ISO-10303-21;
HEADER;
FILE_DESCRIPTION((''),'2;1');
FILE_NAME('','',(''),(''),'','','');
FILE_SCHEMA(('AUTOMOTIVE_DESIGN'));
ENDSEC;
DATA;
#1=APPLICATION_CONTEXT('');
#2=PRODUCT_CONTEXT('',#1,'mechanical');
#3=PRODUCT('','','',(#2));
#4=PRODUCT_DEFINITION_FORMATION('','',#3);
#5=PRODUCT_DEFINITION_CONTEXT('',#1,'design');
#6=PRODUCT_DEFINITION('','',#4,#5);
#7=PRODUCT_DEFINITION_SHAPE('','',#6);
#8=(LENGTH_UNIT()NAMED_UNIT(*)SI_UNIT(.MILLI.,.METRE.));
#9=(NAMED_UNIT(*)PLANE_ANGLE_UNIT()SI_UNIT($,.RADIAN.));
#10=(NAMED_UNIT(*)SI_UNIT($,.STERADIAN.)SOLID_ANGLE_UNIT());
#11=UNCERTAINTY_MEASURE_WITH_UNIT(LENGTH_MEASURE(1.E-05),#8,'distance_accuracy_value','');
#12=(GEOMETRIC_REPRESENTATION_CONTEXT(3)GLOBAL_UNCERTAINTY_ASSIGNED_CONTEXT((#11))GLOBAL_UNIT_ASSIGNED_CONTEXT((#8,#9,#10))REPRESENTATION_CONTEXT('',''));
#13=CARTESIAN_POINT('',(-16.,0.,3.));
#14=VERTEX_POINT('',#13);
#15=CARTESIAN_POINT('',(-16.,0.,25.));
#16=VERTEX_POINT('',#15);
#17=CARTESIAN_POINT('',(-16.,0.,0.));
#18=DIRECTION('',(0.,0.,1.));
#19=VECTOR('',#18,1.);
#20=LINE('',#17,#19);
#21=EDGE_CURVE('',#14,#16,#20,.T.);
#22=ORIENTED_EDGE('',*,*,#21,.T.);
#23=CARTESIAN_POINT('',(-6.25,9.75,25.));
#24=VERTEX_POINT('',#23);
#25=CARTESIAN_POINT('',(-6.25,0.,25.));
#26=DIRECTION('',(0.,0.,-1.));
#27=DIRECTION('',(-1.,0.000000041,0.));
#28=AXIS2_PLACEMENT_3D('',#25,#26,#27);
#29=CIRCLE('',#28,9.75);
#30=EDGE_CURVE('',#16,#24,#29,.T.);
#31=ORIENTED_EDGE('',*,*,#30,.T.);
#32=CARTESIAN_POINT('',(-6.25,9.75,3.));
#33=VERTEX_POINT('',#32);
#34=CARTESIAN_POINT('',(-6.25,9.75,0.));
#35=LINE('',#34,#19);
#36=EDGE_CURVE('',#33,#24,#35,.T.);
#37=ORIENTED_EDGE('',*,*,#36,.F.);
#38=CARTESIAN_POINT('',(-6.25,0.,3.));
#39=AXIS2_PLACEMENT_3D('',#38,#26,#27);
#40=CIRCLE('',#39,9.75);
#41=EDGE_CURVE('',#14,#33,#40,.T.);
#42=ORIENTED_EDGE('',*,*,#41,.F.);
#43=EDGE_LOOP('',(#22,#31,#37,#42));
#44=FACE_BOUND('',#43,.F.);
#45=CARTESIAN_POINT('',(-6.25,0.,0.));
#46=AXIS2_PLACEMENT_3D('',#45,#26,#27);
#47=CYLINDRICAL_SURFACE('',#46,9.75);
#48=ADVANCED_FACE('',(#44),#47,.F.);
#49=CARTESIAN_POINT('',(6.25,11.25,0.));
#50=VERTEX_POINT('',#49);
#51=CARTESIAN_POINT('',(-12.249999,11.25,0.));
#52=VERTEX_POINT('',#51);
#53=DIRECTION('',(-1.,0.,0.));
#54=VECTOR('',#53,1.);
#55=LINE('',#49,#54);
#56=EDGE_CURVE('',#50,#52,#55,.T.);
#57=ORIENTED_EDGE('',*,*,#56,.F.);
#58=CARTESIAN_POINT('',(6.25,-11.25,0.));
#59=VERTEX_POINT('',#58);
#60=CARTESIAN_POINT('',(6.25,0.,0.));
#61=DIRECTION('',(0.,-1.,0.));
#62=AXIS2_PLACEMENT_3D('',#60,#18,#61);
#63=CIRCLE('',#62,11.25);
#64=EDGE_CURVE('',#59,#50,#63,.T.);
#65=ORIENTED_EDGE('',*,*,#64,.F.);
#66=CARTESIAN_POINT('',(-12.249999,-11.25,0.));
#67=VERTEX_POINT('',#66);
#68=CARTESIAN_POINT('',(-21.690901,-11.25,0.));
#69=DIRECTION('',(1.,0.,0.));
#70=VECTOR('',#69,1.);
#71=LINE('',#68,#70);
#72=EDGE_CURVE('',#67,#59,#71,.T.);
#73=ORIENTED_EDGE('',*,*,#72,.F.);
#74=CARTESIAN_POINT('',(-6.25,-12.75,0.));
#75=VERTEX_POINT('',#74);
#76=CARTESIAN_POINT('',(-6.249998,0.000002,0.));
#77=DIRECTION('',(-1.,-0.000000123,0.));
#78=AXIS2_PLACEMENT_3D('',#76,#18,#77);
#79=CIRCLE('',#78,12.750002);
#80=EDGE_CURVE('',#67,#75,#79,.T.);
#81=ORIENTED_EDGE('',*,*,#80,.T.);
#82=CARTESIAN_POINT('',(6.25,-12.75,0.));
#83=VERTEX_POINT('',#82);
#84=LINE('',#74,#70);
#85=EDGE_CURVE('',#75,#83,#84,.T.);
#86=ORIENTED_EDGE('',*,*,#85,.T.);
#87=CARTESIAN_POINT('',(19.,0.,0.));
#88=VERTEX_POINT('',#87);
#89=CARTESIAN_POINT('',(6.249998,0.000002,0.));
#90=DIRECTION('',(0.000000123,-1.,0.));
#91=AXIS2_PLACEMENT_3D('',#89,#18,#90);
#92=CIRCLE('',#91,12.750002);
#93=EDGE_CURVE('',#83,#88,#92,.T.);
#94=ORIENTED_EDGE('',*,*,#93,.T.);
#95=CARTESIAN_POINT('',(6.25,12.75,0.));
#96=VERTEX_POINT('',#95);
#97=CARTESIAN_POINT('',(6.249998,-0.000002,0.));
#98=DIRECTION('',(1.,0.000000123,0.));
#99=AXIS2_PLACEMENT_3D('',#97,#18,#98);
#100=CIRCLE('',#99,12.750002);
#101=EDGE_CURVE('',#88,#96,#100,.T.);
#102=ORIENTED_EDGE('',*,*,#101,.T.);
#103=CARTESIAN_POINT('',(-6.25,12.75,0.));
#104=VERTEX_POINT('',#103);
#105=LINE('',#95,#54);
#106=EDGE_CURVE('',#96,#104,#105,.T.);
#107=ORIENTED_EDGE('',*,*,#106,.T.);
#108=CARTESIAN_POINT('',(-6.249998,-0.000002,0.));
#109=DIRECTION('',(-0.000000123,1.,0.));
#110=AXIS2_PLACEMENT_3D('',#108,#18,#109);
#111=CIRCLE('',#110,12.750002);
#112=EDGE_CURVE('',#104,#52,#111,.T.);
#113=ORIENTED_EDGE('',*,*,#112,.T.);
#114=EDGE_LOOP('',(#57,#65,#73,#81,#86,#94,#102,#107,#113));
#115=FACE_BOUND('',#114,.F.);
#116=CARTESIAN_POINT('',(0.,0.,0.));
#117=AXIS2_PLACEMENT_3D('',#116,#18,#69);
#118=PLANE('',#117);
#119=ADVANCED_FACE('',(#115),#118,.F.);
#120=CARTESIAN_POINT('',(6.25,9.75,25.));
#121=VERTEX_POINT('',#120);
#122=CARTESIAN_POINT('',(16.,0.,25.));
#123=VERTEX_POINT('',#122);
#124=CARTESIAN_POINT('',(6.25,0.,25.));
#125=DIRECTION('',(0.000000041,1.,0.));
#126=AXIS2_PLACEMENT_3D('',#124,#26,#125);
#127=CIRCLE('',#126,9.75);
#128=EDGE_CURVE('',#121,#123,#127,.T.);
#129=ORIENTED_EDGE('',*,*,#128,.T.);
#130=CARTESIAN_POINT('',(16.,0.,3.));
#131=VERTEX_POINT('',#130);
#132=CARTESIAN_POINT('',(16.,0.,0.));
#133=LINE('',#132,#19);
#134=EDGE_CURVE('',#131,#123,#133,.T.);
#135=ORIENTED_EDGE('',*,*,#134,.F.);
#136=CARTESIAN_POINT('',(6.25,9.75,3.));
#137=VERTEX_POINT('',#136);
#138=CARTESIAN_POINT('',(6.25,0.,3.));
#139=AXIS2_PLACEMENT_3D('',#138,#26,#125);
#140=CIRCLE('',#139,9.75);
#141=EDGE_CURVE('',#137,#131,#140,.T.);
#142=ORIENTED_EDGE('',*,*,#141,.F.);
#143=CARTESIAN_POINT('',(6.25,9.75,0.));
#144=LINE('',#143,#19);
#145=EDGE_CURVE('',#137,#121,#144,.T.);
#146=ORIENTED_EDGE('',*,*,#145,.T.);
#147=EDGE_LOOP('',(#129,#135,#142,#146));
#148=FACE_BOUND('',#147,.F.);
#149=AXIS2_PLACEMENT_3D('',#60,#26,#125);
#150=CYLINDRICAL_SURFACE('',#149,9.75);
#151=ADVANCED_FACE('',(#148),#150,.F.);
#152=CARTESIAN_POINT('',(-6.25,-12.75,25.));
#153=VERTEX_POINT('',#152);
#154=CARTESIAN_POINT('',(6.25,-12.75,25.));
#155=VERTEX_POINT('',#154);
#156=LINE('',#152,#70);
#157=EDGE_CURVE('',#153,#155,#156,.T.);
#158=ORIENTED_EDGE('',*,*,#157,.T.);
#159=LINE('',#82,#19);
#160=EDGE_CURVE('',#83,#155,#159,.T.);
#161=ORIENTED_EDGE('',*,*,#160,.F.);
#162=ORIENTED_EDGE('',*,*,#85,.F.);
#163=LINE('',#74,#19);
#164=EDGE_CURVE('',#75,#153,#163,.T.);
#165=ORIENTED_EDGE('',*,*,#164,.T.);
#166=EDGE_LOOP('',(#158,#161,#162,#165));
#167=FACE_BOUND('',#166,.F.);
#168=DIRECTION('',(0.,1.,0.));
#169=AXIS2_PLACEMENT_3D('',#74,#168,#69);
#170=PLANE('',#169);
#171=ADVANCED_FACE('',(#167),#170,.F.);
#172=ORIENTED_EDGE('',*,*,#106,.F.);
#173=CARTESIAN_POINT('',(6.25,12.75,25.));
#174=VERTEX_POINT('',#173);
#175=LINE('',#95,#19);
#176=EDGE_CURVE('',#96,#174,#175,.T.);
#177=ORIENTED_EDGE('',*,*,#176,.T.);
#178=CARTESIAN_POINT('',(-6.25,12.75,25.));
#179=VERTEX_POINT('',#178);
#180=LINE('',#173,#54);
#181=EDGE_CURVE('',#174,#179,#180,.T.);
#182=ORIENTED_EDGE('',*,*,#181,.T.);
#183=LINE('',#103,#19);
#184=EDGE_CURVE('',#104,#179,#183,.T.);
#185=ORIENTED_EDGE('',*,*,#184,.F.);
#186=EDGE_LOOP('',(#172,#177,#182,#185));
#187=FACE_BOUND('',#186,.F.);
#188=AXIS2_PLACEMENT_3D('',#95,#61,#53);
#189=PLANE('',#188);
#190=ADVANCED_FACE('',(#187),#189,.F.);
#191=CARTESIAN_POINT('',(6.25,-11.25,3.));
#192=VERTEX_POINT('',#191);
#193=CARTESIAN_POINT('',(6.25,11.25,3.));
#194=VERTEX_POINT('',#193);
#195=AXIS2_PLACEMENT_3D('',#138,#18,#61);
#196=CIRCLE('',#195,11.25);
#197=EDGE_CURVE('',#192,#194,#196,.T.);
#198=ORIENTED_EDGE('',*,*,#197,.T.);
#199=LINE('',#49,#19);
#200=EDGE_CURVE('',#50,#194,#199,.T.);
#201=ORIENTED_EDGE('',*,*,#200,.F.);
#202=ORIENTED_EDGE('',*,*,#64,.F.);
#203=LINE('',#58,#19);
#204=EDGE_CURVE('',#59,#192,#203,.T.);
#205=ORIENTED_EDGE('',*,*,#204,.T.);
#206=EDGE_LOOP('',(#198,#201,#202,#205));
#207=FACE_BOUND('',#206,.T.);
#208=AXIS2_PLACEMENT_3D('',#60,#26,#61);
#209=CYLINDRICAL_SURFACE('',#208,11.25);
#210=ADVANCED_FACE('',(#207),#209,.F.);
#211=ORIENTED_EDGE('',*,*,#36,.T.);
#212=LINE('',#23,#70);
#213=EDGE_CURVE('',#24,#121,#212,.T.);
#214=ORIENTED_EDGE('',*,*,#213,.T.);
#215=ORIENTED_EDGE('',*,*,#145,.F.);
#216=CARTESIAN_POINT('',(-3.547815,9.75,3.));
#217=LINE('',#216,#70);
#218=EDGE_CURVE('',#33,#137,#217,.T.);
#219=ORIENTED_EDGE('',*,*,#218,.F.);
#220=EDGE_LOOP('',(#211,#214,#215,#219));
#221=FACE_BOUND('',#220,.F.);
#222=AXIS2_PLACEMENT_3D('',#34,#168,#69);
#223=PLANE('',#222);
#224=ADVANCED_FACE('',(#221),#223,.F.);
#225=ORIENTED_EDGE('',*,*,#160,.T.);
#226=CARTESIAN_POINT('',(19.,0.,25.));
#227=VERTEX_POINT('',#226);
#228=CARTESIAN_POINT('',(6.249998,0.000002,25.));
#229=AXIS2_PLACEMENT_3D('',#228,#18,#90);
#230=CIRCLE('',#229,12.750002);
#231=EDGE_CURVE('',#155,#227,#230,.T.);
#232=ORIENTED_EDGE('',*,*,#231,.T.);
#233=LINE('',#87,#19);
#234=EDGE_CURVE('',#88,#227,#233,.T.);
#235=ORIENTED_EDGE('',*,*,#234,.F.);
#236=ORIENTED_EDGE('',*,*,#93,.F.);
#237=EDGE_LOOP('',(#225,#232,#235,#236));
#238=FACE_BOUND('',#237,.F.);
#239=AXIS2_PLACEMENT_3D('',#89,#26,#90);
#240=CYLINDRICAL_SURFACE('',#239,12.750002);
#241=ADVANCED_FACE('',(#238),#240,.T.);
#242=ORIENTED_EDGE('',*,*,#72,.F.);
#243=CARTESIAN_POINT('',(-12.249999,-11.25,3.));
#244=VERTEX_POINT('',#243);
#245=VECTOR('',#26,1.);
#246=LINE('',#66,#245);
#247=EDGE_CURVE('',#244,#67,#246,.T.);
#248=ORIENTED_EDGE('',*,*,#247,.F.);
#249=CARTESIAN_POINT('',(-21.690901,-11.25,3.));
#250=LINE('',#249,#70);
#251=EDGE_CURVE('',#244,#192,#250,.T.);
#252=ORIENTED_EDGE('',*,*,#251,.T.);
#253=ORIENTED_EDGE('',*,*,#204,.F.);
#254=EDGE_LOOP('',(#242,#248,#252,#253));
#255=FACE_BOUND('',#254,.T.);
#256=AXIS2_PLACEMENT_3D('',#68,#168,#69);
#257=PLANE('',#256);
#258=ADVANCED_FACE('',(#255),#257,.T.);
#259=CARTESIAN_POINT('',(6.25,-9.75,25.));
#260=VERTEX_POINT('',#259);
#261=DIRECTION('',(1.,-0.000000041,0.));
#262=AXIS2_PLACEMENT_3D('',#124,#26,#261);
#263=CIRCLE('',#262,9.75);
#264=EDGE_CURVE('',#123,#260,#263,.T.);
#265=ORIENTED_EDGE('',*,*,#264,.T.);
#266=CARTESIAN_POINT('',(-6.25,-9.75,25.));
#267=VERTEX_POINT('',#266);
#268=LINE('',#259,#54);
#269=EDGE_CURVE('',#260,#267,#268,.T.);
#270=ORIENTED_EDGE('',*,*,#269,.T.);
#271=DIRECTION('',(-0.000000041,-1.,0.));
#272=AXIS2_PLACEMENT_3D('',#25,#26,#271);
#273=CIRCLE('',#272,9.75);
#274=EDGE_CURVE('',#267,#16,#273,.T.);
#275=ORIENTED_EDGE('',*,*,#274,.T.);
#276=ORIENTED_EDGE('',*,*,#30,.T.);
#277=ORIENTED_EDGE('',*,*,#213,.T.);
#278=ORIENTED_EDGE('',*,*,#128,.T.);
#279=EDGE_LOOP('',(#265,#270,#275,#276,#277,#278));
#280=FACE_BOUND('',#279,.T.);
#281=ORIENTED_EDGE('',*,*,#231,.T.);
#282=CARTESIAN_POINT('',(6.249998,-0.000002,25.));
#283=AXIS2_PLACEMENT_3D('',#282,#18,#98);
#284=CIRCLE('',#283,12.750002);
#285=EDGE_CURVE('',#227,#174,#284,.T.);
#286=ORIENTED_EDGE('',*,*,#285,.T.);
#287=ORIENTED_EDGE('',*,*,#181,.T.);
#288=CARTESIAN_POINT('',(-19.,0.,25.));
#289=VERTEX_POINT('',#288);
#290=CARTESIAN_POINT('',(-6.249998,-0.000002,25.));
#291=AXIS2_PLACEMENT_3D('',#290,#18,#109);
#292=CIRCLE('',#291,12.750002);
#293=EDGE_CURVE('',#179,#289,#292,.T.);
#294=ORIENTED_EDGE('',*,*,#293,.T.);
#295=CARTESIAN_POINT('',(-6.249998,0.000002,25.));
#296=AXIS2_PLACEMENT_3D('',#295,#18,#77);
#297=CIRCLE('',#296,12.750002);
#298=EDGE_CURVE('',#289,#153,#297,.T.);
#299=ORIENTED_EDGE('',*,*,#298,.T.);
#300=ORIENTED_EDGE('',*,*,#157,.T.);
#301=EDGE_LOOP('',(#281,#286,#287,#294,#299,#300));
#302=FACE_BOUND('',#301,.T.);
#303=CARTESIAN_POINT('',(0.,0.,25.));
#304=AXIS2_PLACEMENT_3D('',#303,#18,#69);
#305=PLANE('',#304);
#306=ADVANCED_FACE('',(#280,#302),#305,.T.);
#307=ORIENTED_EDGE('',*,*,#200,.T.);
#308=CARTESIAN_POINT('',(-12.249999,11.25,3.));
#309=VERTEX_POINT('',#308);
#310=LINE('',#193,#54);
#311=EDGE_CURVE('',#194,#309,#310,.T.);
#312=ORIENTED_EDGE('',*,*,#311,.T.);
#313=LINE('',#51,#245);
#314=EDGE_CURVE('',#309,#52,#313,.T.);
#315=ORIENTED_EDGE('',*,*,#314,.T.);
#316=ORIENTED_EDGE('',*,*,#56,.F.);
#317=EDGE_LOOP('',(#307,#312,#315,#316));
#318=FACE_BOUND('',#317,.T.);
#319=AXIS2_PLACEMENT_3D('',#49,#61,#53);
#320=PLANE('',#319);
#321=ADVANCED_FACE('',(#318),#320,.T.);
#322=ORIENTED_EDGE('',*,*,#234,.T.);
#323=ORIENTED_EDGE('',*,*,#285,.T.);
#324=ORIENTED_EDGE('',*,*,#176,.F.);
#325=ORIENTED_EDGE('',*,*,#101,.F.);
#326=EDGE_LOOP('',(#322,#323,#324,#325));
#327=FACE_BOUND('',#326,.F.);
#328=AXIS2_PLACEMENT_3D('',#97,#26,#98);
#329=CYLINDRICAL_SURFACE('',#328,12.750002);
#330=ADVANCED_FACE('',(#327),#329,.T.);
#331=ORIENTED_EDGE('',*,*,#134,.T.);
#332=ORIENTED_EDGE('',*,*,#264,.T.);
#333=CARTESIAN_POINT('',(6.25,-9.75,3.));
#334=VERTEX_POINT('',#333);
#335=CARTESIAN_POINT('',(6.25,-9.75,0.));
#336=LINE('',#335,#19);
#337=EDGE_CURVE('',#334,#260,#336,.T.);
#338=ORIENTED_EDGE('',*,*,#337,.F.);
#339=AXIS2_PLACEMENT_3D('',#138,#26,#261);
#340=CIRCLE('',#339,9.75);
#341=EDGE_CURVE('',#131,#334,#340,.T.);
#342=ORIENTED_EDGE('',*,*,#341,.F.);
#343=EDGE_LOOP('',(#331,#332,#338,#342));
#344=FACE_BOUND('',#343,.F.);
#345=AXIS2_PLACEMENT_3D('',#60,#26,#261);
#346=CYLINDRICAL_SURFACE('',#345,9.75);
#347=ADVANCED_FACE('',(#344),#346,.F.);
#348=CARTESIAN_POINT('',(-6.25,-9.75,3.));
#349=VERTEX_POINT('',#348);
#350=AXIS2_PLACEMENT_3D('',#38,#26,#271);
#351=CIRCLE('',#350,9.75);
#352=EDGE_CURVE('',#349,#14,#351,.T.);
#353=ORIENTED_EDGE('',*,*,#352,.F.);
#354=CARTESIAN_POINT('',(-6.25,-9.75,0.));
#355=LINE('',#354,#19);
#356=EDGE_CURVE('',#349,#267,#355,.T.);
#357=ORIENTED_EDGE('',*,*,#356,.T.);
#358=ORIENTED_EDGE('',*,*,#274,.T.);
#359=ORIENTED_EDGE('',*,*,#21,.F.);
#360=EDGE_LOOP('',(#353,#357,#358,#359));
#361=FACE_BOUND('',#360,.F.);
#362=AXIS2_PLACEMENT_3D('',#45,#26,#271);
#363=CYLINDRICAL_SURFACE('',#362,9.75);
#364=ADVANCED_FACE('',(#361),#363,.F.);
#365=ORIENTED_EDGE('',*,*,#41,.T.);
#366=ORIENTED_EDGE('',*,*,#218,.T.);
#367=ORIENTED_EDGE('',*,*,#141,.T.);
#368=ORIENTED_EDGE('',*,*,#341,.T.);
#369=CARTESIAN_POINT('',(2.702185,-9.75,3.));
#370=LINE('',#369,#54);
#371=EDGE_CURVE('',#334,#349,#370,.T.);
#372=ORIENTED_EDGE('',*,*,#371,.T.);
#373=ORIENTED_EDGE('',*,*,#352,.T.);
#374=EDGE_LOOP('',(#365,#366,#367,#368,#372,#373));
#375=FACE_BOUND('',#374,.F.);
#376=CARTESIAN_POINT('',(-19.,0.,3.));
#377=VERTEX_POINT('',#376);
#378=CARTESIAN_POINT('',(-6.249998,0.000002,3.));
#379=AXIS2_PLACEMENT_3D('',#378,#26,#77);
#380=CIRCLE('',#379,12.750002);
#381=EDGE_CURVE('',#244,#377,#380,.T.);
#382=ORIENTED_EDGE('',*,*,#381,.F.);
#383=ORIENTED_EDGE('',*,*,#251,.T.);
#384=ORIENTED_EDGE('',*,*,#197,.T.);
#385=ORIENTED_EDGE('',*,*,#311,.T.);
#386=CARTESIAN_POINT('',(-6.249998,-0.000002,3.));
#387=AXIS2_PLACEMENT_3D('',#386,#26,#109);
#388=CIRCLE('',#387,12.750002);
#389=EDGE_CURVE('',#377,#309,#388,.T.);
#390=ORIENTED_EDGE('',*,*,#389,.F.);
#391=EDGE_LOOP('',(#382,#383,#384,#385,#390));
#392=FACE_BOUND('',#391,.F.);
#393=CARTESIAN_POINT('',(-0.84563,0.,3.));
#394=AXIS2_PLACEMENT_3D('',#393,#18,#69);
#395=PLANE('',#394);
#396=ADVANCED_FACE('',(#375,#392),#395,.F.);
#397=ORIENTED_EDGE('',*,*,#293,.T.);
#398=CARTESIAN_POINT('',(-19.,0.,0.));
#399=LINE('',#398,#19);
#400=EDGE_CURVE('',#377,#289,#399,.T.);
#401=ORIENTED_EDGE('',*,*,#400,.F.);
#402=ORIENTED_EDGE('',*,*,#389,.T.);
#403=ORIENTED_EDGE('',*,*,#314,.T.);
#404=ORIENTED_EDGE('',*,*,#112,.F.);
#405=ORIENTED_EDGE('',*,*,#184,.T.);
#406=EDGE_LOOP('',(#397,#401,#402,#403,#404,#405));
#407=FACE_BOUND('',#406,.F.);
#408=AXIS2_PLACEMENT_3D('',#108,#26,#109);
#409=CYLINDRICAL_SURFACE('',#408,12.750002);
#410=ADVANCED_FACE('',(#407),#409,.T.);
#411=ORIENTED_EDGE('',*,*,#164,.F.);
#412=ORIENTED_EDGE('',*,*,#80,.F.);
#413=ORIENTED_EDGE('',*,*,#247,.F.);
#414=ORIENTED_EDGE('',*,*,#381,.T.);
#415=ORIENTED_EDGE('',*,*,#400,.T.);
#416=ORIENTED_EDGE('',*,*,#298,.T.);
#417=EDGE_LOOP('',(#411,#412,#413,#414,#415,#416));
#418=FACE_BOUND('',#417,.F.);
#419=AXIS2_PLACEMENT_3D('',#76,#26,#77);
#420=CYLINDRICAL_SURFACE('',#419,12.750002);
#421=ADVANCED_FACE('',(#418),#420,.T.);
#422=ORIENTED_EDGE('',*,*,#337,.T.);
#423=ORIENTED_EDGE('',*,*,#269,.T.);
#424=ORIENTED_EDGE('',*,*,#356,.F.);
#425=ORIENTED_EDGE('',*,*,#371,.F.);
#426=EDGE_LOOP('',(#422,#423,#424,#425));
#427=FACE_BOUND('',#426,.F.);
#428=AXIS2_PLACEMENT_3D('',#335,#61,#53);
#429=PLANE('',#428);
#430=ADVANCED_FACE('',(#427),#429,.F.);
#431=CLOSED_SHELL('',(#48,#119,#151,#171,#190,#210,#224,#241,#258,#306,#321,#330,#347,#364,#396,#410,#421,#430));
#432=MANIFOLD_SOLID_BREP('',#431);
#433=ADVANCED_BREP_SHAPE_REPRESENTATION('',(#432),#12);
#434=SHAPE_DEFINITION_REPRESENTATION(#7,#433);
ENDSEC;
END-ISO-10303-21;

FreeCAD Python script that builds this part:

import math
import FreeCAD as App
import Part
import Sketcher
Q = App.Units.Quantity

doc = App.newDocument("Part")
params = doc.addObject("Spreadsheet::Sheet", "Params")
for row, (alias, value) in enumerate([
    ("sketch1_radius", "12.750002 mm"),
    ("sketch1_radius2", "9.75 mm"),
    ("sketch1_width", "12.5 mm"),
    ("pad1_length", "25 mm"),
    ("sketch2_radius", "11.25 mm"),
    ("pocket1_length", "3 mm"),
], start=1):
    params.set(f"A{row}", alias)
    params.set(f"B{row}", "=" + value)
    params.setAlias(f"B{row}", alias)

body = doc.addObject("PartDesign::Body", "Body")

sketch1 = body.newObject("Sketcher::SketchObject", "Sketch")
sketch1.AttachmentSupport = (doc.getObject("XY_Plane"), [""])
sketch1.MapMode = "FlatFace"
sketch1.addGeometry(Part.ArcOfCircle(Part.Circle(App.Vector(6, 0, 0), App.Vector(0, 0, 1), 13), math.radians(0), math.radians(90)), False)
sketch1.addGeometry(Part.LineSegment(App.Vector(6, 13, 0), App.Vector(-6, 13, 0)), False)
sketch1.addGeometry(Part.ArcOfCircle(Part.Circle(App.Vector(-6, 0, 0), App.Vector(0, 0, 1), 13), math.radians(90), math.radians(180)), False)
sketch1.addGeometry(Part.ArcOfCircle(Part.Circle(App.Vector(-6, 0, 0), App.Vector(0, 0, 1), 13), math.radians(-180), math.radians(-90)), False)
sketch1.addGeometry(Part.LineSegment(App.Vector(-6, -13, 0), App.Vector(6, -13, 0)), False)
sketch1.addGeometry(Part.ArcOfCircle(Part.Circle(App.Vector(6, 0, 0), App.Vector(0, 0, 1), 13), math.radians(-90), math.radians(0)), False)
sketch1.addGeometry(Part.ArcOfCircle(Part.Circle(App.Vector(6, 0, 0), App.Vector(0, 0, 1), 10), math.radians(0), math.radians(90)), False)
sketch1.addGeometry(Part.ArcOfCircle(Part.Circle(App.Vector(6, 0, 0), App.Vector(0, 0, 1), 10), math.radians(-90), math.radians(0)), False)
sketch1.addGeometry(Part.LineSegment(App.Vector(6, -10, 0), App.Vector(-6, -10, 0)), False)
sketch1.addGeometry(Part.ArcOfCircle(Part.Circle(App.Vector(-6, 0, 0), App.Vector(0, 0, 1), 10), math.radians(-180), math.radians(-90)), False)
sketch1.addGeometry(Part.ArcOfCircle(Part.Circle(App.Vector(-6, 0, 0), App.Vector(0, 0, 1), 10), math.radians(90), math.radians(180)), False)
sketch1.addGeometry(Part.LineSegment(App.Vector(-6, 10, 0), App.Vector(6, 10, 0)), False)
sketch1.addConstraint(Sketcher.Constraint("Tangent", 0, 2, 1, 1))
sketch1.addConstraint(Sketcher.Constraint("Tangent", 1, 2, 2, 1))
sketch1.addConstraint(Sketcher.Constraint("Tangent", 2, 2, 3, 1))
sketch1.addConstraint(Sketcher.Constraint("Tangent", 3, 2, 4, 1))
sketch1.addConstraint(Sketcher.Constraint("Tangent", 4, 2, 5, 1))
sketch1.addConstraint(Sketcher.Constraint("Tangent", 5, 2, 0, 1))
sketch1.addConstraint(Sketcher.Constraint("Tangent", 6, 1, 7, 2))
sketch1.addConstraint(Sketcher.Constraint("Tangent", 7, 1, 8, 1))
sketch1.addConstraint(Sketcher.Constraint("Tangent", 8, 2, 9, 2))
sketch1.addConstraint(Sketcher.Constraint("Tangent", 9, 1, 10, 2))
sketch1.addConstraint(Sketcher.Constraint("Tangent", 10, 1, 11, 1))
sketch1.addConstraint(Sketcher.Constraint("Tangent", 11, 2, 6, 2))
sketch1.addConstraint(Sketcher.Constraint("Horizontal", 1))
sketch1.addConstraint(Sketcher.Constraint("Horizontal", 4))
sketch1.addConstraint(Sketcher.Constraint("Horizontal", 8))
sketch1.addConstraint(Sketcher.Constraint("Horizontal", 11))
sketch1.addConstraint(Sketcher.Constraint("Coincident", 6, 3, 0, 3))
sketch1.addConstraint(Sketcher.Constraint("Coincident", 9, 3, 2, 3))
sketch1.addConstraint(Sketcher.Constraint("Equal", 0, 2))
sketch1.addConstraint(Sketcher.Constraint("Equal", 2, 3))
sketch1.addConstraint(Sketcher.Constraint("Equal", 6, 7))
sketch1.addConstraint(Sketcher.Constraint("Symmetric", 0, 3, 2, 3, -1, 1))
sketch1.addConstraint(Sketcher.Constraint("PointOnObject", 2, 2, -1))
sketch1.addConstraint(Sketcher.Constraint("PointOnObject", 5, 2, -1))
sketch1.addConstraint(Sketcher.Constraint("PointOnObject", 6, 1, -1))
sketch1.addConstraint(Sketcher.Constraint("PointOnObject", 9, 1, -1))
sketch1.addConstraint(Sketcher.Constraint("Radius", 0, Q("12.750002 mm")))
sketch1.addConstraint(Sketcher.Constraint("Radius", 6, Q("9.75 mm")))
sketch1.addConstraint(Sketcher.Constraint("DistanceX", 1, 2, 1, 1, Q("12.5 mm")))
sketch1.setExpression("Constraints[26]", "Params.sketch1_radius")
sketch1.setExpression("Constraints[27]", "Params.sketch1_radius2")
sketch1.setExpression("Constraints[28]", "Params.sketch1_width")
pad1 = body.newObject("PartDesign::Pad", "Pad")
pad1.Profile = sketch1
pad1.setExpression("Length", "Params.pad1_length")

sketch2 = body.newObject("Sketcher::SketchObject", "Sketch001")
sketch2.AttachmentSupport = (doc.getObject("XY_Plane"), [""])
sketch2.MapMode = "FlatFace"
sketch2.addGeometry(Part.LineSegment(App.Vector(-22, -11, 0), App.Vector(6, -11, 0)), False)
sketch2.addGeometry(Part.ArcOfCircle(Part.Circle(App.Vector(6, 0, 0), App.Vector(0, 0, 1), 11), math.radians(-90), math.radians(90)), False)
sketch2.addGeometry(Part.LineSegment(App.Vector(6, 11, 0), App.Vector(-22, 11, 0)), False)
sketch2.addGeometry(Part.LineSegment(App.Vector(-22, 11, 0), App.Vector(-22, -11, 0)), False)
sketch2.addConstraint(Sketcher.Constraint("Tangent", 0, 2, 1, 1))
sketch2.addConstraint(Sketcher.Constraint("Tangent", 1, 2, 2, 1))
sketch2.addConstraint(Sketcher.Constraint("Coincident", 2, 2, 3, 1))
sketch2.addConstraint(Sketcher.Constraint("Coincident", 3, 2, 0, 1))
sketch2.addConstraint(Sketcher.Constraint("Horizontal", 0))
sketch2.addConstraint(Sketcher.Constraint("Horizontal", 2))
sketch2.addConstraint(Sketcher.Constraint("Vertical", 3))
sketch2.addConstraint(Sketcher.Constraint("PointOnObject", 1, 3, -1))
sketch2.addConstraint(Sketcher.Constraint("Radius", 1, Q("11.25 mm")))
sketch2.addConstraint(Sketcher.Constraint("DistanceX", -1, 1, 1, 3, Q("6.25 mm")))
sketch2.addConstraint(Sketcher.Constraint("DistanceX", 0, 1, 0, 2, Q("27.940901 mm")))
sketch2.setExpression("Constraints[8]", "Params.sketch2_radius")
pocket1 = body.newObject("PartDesign::Pocket", "Pocket")
pocket1.Profile = sketch2
pocket1.setExpression("Length", "Params.pocket1_length")
pocket1.Reversed = True

doc.recompute()
